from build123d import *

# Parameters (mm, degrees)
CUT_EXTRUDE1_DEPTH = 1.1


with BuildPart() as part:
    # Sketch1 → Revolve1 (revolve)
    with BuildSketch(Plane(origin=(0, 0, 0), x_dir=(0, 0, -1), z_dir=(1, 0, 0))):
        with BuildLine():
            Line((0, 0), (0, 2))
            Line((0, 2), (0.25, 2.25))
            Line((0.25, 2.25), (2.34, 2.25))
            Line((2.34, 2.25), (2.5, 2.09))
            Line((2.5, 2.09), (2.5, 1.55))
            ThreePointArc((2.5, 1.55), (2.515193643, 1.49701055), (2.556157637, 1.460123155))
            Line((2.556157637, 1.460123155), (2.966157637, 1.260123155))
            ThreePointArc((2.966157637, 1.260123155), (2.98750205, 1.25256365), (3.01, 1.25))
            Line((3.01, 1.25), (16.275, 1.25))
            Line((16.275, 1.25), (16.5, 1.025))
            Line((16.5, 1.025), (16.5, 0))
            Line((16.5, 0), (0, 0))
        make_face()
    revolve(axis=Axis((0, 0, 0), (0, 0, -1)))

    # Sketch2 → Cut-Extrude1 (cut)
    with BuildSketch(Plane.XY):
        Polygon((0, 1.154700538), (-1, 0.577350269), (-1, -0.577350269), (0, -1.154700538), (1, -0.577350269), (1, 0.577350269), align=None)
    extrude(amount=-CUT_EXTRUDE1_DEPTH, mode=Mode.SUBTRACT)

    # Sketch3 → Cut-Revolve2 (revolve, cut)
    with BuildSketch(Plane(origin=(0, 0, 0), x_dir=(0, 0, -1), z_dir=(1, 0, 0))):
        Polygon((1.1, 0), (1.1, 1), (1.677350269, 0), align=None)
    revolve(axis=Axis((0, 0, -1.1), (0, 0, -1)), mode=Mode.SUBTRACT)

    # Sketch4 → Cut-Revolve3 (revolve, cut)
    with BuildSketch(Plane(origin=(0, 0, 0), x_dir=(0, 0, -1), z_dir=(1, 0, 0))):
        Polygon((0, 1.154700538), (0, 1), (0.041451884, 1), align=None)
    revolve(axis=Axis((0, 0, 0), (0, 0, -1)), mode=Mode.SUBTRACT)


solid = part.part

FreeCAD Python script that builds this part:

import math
import FreeCAD as App
import Part
import Sketcher
Q = App.Units.Quantity


def add_polygon(sketch, points):
    """Adds a closed chain of lines whose ends are joined by coincident constraints."""
    first, n = sketch.GeometryCount, len(points)
    for a, b in zip(points, points[1:] + points[:1]):
        sketch.addGeometry(Part.LineSegment(App.Vector(*a, 0), App.Vector(*b, 0)), False)
    for i in range(n):
        sketch.addConstraint(Sketcher.Constraint("Coincident", first + i, 2, first + (i + 1) % n, 1))

doc = App.newDocument("Part")
params = doc.addObject("Spreadsheet::Sheet", "Params")
for row, (alias, value) in enumerate([
    ("sketch1_radius", "0.1 mm"),
    ("sketch1_width", "2 mm"),
    ("sketch1_height", "16.5 mm"),
    ("sketch1_width2", "0.54 mm"),
    ("sketch1_height2", "2.09 mm"),
    ("revolution_angle", "360 deg"),
    ("pocket1_length", "1.1 mm"),
    ("sketch3_width", "1 mm"),
    ("groove_angle", "360 deg"),
    ("groove2_angle", "360 deg"),
], start=1):
    params.set(f"A{row}", alias)
    params.set(f"B{row}", "=" + value)
    params.setAlias(f"B{row}", alias)

body = doc.addObject("PartDesign::Body", "Body")

# Sketch on YZ plane
sketch1 = body.newObject("Sketcher::SketchObject", "Sketch")
sketch1.AttachmentSupport = (doc.getObject("YZ_Plane"), [""])
sketch1.MapMode = "FlatFace"
sketch1.addGeometry([
    Part.LineSegment(App.Vector(2, 0, 0), App.Vector(0, 0, 0)),  # 0
    Part.LineSegment(App.Vector(0, 0, 0), App.Vector(0, -16.5, 0)),  # 1
    Part.LineSegment(App.Vector(0, -16.5, 0), App.Vector(1.025, -16.5, 0)),  # 2
    Part.LineSegment(App.Vector(1.025, -16.5, 0), App.Vector(1.25, -16.275, 0)),  # 3
    Part.LineSegment(App.Vector(1.25, -16.275, 0), App.Vector(1.25, -3.01, 0)),  # 4
    Part.ArcOfCircle(Part.Circle(App.Vector(1.35, -3.01, 0), App.Vector(0, 0, 1), 0.1), math.radians(154), math.radians(180)),  # 5
    Part.LineSegment(App.Vector(1.26, -2.966, 0), App.Vector(1.46, -2.556, 0)),  # 6
    Part.ArcOfCircle(Part.Circle(App.Vector(1.55, -2.6, 0), App.Vector(0, 0, 1), 0.1), math.radians(90), math.radians(154)),  # 7
    Part.LineSegment(App.Vector(1.55, -2.5, 0), App.Vector(2.09, -2.5, 0)),  # 8
    Part.LineSegment(App.Vector(2.09, -2.5, 0), App.Vector(2.25, -2.34, 0)),  # 9
    Part.LineSegment(App.Vector(2.25, -2.34, 0), App.Vector(2.25, -0.25, 0)),  # 10
    Part.LineSegment(App.Vector(2.25, -0.25, 0), App.Vector(2, 0, 0)),  # 11
], False)
sketch1.addConstraint([
    Sketcher.Constraint("Coincident", 0, 2, 1, 1),
    Sketcher.Constraint("Coincident", 1, 2, 2, 1),
    Sketcher.Constraint("Coincident", 2, 2, 3, 1),
    Sketcher.Constraint("Coincident", 3, 2, 4, 1),
    Sketcher.Constraint("Tangent", 4, 2, 5, 2),
    Sketcher.Constraint("Tangent", 5, 1, 6, 1),
    Sketcher.Constraint("Tangent", 6, 2, 7, 2),
    Sketcher.Constraint("Tangent", 7, 1, 8, 1),
    Sketcher.Constraint("Coincident", 8, 2, 9, 1),
    Sketcher.Constraint("Coincident", 9, 2, 10, 1),
    Sketcher.Constraint("Coincident", 10, 2, 11, 1),
    Sketcher.Constraint("Coincident", 11, 2, 0, 1),
    Sketcher.Constraint("Horizontal", 0),
    Sketcher.Constraint("Vertical", 1),
    Sketcher.Constraint("Horizontal", 2),
    Sketcher.Constraint("Vertical", 4),
    Sketcher.Constraint("Horizontal", 8),
    Sketcher.Constraint("Vertical", 10),
    Sketcher.Constraint("Coincident", 0, 2, -1, 1),
    Sketcher.Constraint("Equal", 5, 7),
    Sketcher.Constraint("Parallel", 3, 9),
    Sketcher.Constraint("Perpendicular", 9, 11),
    Sketcher.Constraint("Radius", 5, 0.1),
    Sketcher.Constraint("DistanceX", 0, 2, 0, 1, 2.0),
    Sketcher.Constraint("Angle", 3, Q("45 deg")),
    Sketcher.Constraint("DistanceY", 1, 2, 1, 1, 16.5),
    Sketcher.Constraint("DistanceX", 8, 1, 8, 2, 0.54),
    Sketcher.Constraint("DistanceY", 10, 1, 10, 2, 2.09),
    Sketcher.Constraint("DistanceY", 7, 3, -1, 1, 2.6),
    Sketcher.Constraint("DistanceX", 5, 3, 7, 3, 0.2),
    Sketcher.Constraint("DistanceX", 7, 1, 9, 2, 0.7),
    Sketcher.Constraint("DistanceX", 2, 1, 2, 2, 1.025),
    Sketcher.Constraint("DistanceY", 4, 1, 4, 2, 13.265),
])
sketch1.setExpression("Constraints[22]", "Params.sketch1_radius")
sketch1.setExpression("Constraints[23]", "Params.sketch1_width")
sketch1.setExpression("Constraints[25]", "Params.sketch1_height")
sketch1.setExpression("Constraints[26]", "Params.sketch1_width2")
sketch1.setExpression("Constraints[27]", "Params.sketch1_height2")
revolution = body.newObject("PartDesign::Revolution", "Revolution")
revolution.Profile = sketch1
revolution.ReferenceAxis = (sketch1, ["V_Axis"])
revolution.setExpression("Angle", "Params.revolution_angle")

# Sketch on XY plane
sketch2 = body.newObject("Sketcher::SketchObject", "Sketch001")
sketch2.AttachmentSupport = (doc.getObject("XY_Plane"), [""])
sketch2.MapMode = "FlatFace"
add_polygon(sketch2, [(0, 1.2), (-1, 0.6), (-1, -0.6), (0, -1.2), (1, -0.6), (1, 0.6)])  # lines 0-5
sketch2.addConstraint([
    Sketcher.Constraint("Vertical", 1),
    Sketcher.Constraint("Vertical", 4),
    Sketcher.Constraint("Symmetric", 0, 2, 3, 2, -1, 1),
    Sketcher.Constraint("Symmetric", 2, 2, 5, 2, -1, 1),
    Sketcher.Constraint("PointOnObject", 2, 2, -2),
    Sketcher.Constraint("Parallel", 2, 5),
    Sketcher.Constraint("Horizontal", 1, 2, 3, 2),
    Sketcher.Constraint("Angle", 0, Q("-150 deg")),
    Sketcher.Constraint("DistanceX", 0, 2, -1, 1, 1.0),
    Sketcher.Constraint("DistanceY", 1, 2, 1, 1, 1.154701),
])
pocket1 = body.newObject("PartDesign::Pocket", "Pocket")
pocket1.Profile = sketch2
pocket1.setExpression("Length", "Params.pocket1_length")

# Sketch on YZ plane
sketch3 = body.newObject("Sketcher::SketchObject", "Sketch002")
sketch3.AttachmentSupport = (doc.getObject("YZ_Plane"), [""])
sketch3.MapMode = "FlatFace"
add_polygon(sketch3, [(1, -1.1), (0, -1.1), (0, -1.7)])  # lines 0-2
sketch3.addConstraint([
    Sketcher.Constraint("Horizontal", 0),
    Sketcher.Constraint("Vertical", 1),
    Sketcher.Constraint("PointOnObject", 0, 2, -2),
    Sketcher.Constraint("DistanceX", 0, 2, 0, 1, 1.0),
    Sketcher.Constraint("Angle", 2, Q("30 deg")),
    Sketcher.Constraint("DistanceY", 0, 2, -1, 1, 1.1),
])
sketch3.setExpression("Constraints[6]", "Params.sketch3_width")
groove = body.newObject("PartDesign::Groove", "Groove")
groove.Profile = sketch3
groove.ReferenceAxis = (sketch3, ["V_Axis"])
groove.setExpression("Angle", "Params.groove_angle")

# Sketch on YZ plane
sketch4 = body.newObject("Sketcher::SketchObject", "Sketch003")
sketch4.AttachmentSupport = (doc.getObject("YZ_Plane"), [""])
sketch4.MapMode = "FlatFace"
add_polygon(sketch4, [(1.155, 0), (1, 0), (1, -0.041)])  # lines 0-2
sketch4.addConstraint([
    Sketcher.Constraint("Horizontal", 0),
    Sketcher.Constraint("Vertical", 1),
    Sketcher.Constraint("PointOnObject", 0, 2, -1),
    Sketcher.Constraint("Angle", 2, Q("15 deg")),
    Sketcher.Constraint("DistanceX", -1, 1, 0, 2, 1.0),
    Sketcher.Constraint("DistanceX", 0, 2, 0, 1, 0.154701),
])
groove2 = body.newObject("PartDesign::Groove", "Groove001")
groove2.Profile = sketch4
groove2.ReferenceAxis = (sketch4, ["V_Axis"])
groove2.setExpression("Angle", "Params.groove2_angle")

doc.recompute()
